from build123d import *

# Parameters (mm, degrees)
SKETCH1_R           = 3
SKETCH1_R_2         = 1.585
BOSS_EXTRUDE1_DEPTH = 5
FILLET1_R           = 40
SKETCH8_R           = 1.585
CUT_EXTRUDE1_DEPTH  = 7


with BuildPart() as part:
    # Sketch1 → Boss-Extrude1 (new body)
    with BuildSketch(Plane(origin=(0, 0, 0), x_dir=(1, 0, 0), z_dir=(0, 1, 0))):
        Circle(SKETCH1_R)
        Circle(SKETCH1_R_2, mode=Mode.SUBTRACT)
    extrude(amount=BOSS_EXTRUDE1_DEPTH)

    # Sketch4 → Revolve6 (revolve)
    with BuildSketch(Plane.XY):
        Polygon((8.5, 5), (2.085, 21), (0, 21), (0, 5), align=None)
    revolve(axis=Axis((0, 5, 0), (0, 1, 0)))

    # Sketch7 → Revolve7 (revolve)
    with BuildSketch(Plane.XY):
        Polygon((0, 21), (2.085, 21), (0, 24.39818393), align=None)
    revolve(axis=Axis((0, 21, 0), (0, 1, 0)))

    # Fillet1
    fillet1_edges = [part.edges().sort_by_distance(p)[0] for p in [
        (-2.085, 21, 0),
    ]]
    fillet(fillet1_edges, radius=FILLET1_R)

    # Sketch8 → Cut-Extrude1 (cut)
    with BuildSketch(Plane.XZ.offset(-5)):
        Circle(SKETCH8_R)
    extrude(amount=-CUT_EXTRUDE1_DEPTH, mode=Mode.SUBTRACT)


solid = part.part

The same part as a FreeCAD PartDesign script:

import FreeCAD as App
import Part
import Sketcher
from FreeCAD import Vector


def edges_at(feature, points):
    """Names of the edges that pass closest to the given points."""
    edges = feature.Shape.Edges
    near = lambda p: min(range(len(edges)), key=lambda i: edges[i].distToShape(Part.Vertex(*p))[0])
    return sorted({f"Edge{near(p) + 1}" for p in points})

doc = App.newDocument("Part")
body = doc.addObject("PartDesign::Body", "Body")

# Sketch on XZ plane
sketch1 = body.newObject("Sketcher::SketchObject", "Sketch")
sketch1.AttachmentSupport = (doc.getObject("XZ_Plane"), [""])
sketch1.MapMode = "FlatFace"
sketch1.addGeometry(Part.Circle(Vector(0, 0, 0), Vector(0, 0, 1), 3), False)
sketch1.addGeometry(Part.Circle(Vector(0, 0, 0), Vector(0, 0, 1), 1.585), False)
sketch1.addConstraint(Sketcher.Constraint("Coincident", 0, 3, -1, 1))
sketch1.addConstraint(Sketcher.Constraint("Coincident", 1, 3, -1, 1))
sketch1.addConstraint(Sketcher.Constraint("Diameter", 0, 6.0))
sketch1.addConstraint(Sketcher.Constraint("Diameter", 1, 3.17))
pad1 = body.newObject("PartDesign::Pad", "Pad")
pad1.Profile = sketch1
pad1.Length = 5
pad1.Reversed = True

# Sketch on XY plane
sketch2 = body.newObject("Sketcher::SketchObject", "Sketch001")
sketch2.AttachmentSupport = (doc.getObject("XY_Plane"), [""])
sketch2.MapMode = "FlatFace"
sketch2.addGeometry(Part.LineSegment(Vector(8.5, 5, 0), Vector(2.085, 21, 0)), False)
sketch2.addGeometry(Part.LineSegment(Vector(2.085, 21, 0), Vector(0, 21, 0)), False)
sketch2.addGeometry(Part.LineSegment(Vector(0, 21, 0), Vector(0, 5, 0)), False)
sketch2.addGeometry(Part.LineSegment(Vector(0, 5, 0), Vector(8.5, 5, 0)), False)
sketch2.addConstraint(Sketcher.Constraint("Coincident", 0, 2, 1, 1))
sketch2.addConstraint(Sketcher.Constraint("Coincident", 1, 2, 2, 1))
sketch2.addConstraint(Sketcher.Constraint("Coincident", 2, 2, 3, 1))
sketch2.addConstraint(Sketcher.Constraint("Coincident", 3, 2, 0, 1))
sketch2.addConstraint(Sketcher.Constraint("Horizontal", 1))
sketch2.addConstraint(Sketcher.Constraint("Vertical", 2))
sketch2.addConstraint(Sketcher.Constraint("Horizontal", 3))
sketch2.addConstraint(Sketcher.Constraint("PointOnObject", 1, 2, -2))
sketch2.addConstraint(Sketcher.Constraint("DistanceY", 2, 2, 2, 1, 16.0))
sketch2.addConstraint(Sketcher.Constraint("DistanceX", 3, 1, 3, 2, 8.5))
sketch2.addConstraint(Sketcher.Constraint("DistanceY", -1, 1, 0, 2, 21.0))
sketch2.addConstraint(Sketcher.Constraint("DistanceX", 1, 2, 1, 1, 2.085))
revolution = body.newObject("PartDesign::Revolution", "Revolution")
revolution.Profile = sketch2
revolution.ReferenceAxis = (sketch2, ["V_Axis"])
revolution.Angle = 360

# Sketch on XY plane
sketch3 = body.newObject("Sketcher::SketchObject", "Sketch002")
sketch3.AttachmentSupport = (doc.getObject("XY_Plane"), [""])
sketch3.MapMode = "FlatFace"
sketch3.addGeometry(Part.LineSegment(Vector(0, 21, 0), Vector(2.085, 21, 0)), False)
sketch3.addGeometry(Part.LineSegment(Vector(2.085, 21, 0), Vector(0, 24.398184, 0)), False)
sketch3.addGeometry(Part.LineSegment(Vector(0, 24.398184, 0), Vector(0, 21, 0)), False)
sketch3.addConstraint(Sketcher.Constraint("Coincident", 0, 2, 1, 1))
sketch3.addConstraint(Sketcher.Constraint("Coincident", 1, 2, 2, 1))
sketch3.addConstraint(Sketcher.Constraint("Coincident", 2, 2, 0, 1))
sketch3.addConstraint(Sketcher.Constraint("Horizontal", 0))
sketch3.addConstraint(Sketcher.Constraint("Vertical", 2))
sketch3.addConstraint(Sketcher.Constraint("PointOnObject", 1, 2, -2))
sketch3.addConstraint(Sketcher.Constraint("DistanceY", -1, 1, 0, 2, 21.0))
sketch3.addConstraint(Sketcher.Constraint("DistanceX", 0, 1, 0, 2, 2.085))
sketch3.addConstraint(Sketcher.Constraint("Distance", 1, 3.986838))
revolution2 = body.newObject("PartDesign::Revolution", "Revolution001")
revolution2.Profile = sketch3
revolution2.ReferenceAxis = (sketch3, ["V_Axis"])
revolution2.Angle = 360
doc.recompute()

fillet = body.newObject("PartDesign::Fillet", "Fillet")
fillet.Base = (revolution2, edges_at(revolution2, [(-2.085, 21, 0)]))
fillet.Radius = 40

# Sketch on XZ plane
sketch4 = body.newObject("Sketcher::SketchObject", "Sketch003")
sketch4.AttachmentSupport = (doc.getObject("XZ_Plane"), [""])
sketch4.MapMode = "FlatFace"
sketch4.AttachmentOffset = App.Placement(Vector(0, 0, -5), App.Rotation())
sketch4.addGeometry(Part.Circle(Vector(0, 0, 0), Vector(0, 0, 1), 1.585), False)
sketch4.addConstraint(Sketcher.Constraint("Coincident", 0, 3, -1, 1))
sketch4.addConstraint(Sketcher.Constraint("Diameter", 0, 3.17))
pocket1 = body.newObject("PartDesign::Pocket", "Pocket")
pocket1.Profile = sketch4
pocket1.Length = 7

doc.recompute()
